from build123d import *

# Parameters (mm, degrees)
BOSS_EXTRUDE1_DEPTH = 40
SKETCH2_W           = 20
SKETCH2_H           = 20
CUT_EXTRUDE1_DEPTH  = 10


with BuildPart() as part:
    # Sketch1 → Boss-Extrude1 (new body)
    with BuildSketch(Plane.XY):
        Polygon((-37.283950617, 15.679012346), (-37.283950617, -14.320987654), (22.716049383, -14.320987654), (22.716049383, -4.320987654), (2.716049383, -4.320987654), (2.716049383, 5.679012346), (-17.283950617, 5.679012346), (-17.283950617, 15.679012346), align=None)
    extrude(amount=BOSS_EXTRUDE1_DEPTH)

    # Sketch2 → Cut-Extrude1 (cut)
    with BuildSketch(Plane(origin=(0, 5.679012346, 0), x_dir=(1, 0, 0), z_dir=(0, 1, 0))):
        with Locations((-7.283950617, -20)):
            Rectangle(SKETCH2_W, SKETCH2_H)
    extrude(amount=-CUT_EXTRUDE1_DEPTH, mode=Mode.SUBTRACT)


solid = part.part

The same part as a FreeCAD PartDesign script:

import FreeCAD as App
import Part
import Sketcher
Q = App.Units.Quantity

doc = App.newDocument("Part")
body = doc.addObject("PartDesign::Body", "Body")

sketch1 = body.newObject("Sketcher::SketchObject", "Sketch")
sketch1.AttachmentSupport = (doc.getObject("XY_Plane"), [""])
sketch1.MapMode = "FlatFace"
sketch1.addGeometry([
    Part.LineSegment(App.Vector(-37.283951, 15.679012, 0), App.Vector(-37.283951, -14.320988, 0)),
    Part.LineSegment(App.Vector(-37.283951, -14.320988, 0), App.Vector(22.716049, -14.320988, 0)),
    Part.LineSegment(App.Vector(22.716049, -14.320988, 0), App.Vector(22.716049, -4.320988, 0)),
    Part.LineSegment(App.Vector(22.716049, -4.320988, 0), App.Vector(2.716049, -4.320988, 0)),
    Part.LineSegment(App.Vector(2.716049, -4.320988, 0), App.Vector(2.716049, 5.679012, 0)),
    Part.LineSegment(App.Vector(2.716049, 5.679012, 0), App.Vector(-17.283951, 5.679012, 0)),
    Part.LineSegment(App.Vector(-17.283951, 5.679012, 0), App.Vector(-17.283951, 15.679012, 0)),
    Part.LineSegment(App.Vector(-17.283951, 15.679012, 0), App.Vector(-37.283951, 15.679012, 0)),
], False)
sketch1.addConstraint([
    Sketcher.Constraint("Coincident", 0, 2, 1, 1),
    Sketcher.Constraint("Coincident", 1, 2, 2, 1),
    Sketcher.Constraint("Coincident", 2, 2, 3, 1),
    Sketcher.Constraint("Coincident", 3, 2, 4, 1),
    Sketcher.Constraint("Coincident", 4, 2, 5, 1),
    Sketcher.Constraint("Coincident", 5, 2, 6, 1),
    Sketcher.Constraint("Coincident", 6, 2, 7, 1),
    Sketcher.Constraint("Coincident", 7, 2, 0, 1),
    Sketcher.Constraint("Vertical", 0),
    Sketcher.Constraint("Horizontal", 1),
    Sketcher.Constraint("Vertical", 2),
    Sketcher.Constraint("Horizontal", 3),
    Sketcher.Constraint("Vertical", 4),
    Sketcher.Constraint("Horizontal", 5),
    Sketcher.Constraint("Vertical", 6),
    Sketcher.Constraint("Horizontal", 7),
    Sketcher.Constraint("Equal", 3, 5),
    Sketcher.Constraint("Equal", 5, 7),
    Sketcher.Constraint("Equal", 2, 4),
    Sketcher.Constraint("Equal", 4, 6),
    Sketcher.Constraint("DistanceX", 1, 1, 1, 2, Q("60 mm")),
    Sketcher.Constraint("DistanceY", 0, 2, 0, 1, Q("30 mm")),
    Sketcher.Constraint("DistanceX", 0, 2, -1, 1, Q("37.283951 mm")),
    Sketcher.Constraint("DistanceY", 0, 2, -1, 1, Q("14.320988 mm")),
])
pad1 = body.newObject("PartDesign::Pad", "Pad")
pad1.Profile = sketch1
pad1.Length = 40

sketch2 = body.newObject("Sketcher::SketchObject", "Sketch001")
sketch2.AttachmentSupport = (doc.getObject("XZ_Plane"), [""])
sketch2.MapMode = "FlatFace"
sketch2.AttachmentOffset = App.Placement(App.Vector(0, 0, -5.679012), App.Rotation())
sketch2.addGeometry([
    Part.LineSegment(App.Vector(-17.283951, 10, 0), App.Vector(-17.283951, 30, 0)),
    Part.LineSegment(App.Vector(-17.283951, 30, 0), App.Vector(2.716049, 30, 0)),
    Part.LineSegment(App.Vector(2.716049, 30, 0), App.Vector(2.716049, 10, 0)),
    Part.LineSegment(App.Vector(2.716049, 10, 0), App.Vector(-17.283951, 10, 0)),
], False)
sketch2.addConstraint([
    Sketcher.Constraint("Coincident", 0, 2, 1, 1),
    Sketcher.Constraint("Coincident", 1, 2, 2, 1),
    Sketcher.Constraint("Coincident", 2, 2, 3, 1),
    Sketcher.Constraint("Coincident", 3, 2, 0, 1),
    Sketcher.Constraint("Vertical", 0),
    Sketcher.Constraint("Horizontal", 1),
    Sketcher.Constraint("Vertical", 2),
    Sketcher.Constraint("Horizontal", 3),
    Sketcher.Constraint("Equal", 3, 0),
    Sketcher.Constraint("DistanceX", 1, 1, 1, 2, Q("20 mm")),
    Sketcher.Constraint("DistanceY", -1, 1, 0, 2, Q("30 mm")),
    Sketcher.Constraint("DistanceX", 0, 2, -1, 1, Q("17.283951 mm")),
])
pocket1 = body.newObject("PartDesign::Pocket", "Pocket")
pocket1.Profile = sketch2
pocket1.Length = 10
pocket1.Reversed = True

doc.recompute()
